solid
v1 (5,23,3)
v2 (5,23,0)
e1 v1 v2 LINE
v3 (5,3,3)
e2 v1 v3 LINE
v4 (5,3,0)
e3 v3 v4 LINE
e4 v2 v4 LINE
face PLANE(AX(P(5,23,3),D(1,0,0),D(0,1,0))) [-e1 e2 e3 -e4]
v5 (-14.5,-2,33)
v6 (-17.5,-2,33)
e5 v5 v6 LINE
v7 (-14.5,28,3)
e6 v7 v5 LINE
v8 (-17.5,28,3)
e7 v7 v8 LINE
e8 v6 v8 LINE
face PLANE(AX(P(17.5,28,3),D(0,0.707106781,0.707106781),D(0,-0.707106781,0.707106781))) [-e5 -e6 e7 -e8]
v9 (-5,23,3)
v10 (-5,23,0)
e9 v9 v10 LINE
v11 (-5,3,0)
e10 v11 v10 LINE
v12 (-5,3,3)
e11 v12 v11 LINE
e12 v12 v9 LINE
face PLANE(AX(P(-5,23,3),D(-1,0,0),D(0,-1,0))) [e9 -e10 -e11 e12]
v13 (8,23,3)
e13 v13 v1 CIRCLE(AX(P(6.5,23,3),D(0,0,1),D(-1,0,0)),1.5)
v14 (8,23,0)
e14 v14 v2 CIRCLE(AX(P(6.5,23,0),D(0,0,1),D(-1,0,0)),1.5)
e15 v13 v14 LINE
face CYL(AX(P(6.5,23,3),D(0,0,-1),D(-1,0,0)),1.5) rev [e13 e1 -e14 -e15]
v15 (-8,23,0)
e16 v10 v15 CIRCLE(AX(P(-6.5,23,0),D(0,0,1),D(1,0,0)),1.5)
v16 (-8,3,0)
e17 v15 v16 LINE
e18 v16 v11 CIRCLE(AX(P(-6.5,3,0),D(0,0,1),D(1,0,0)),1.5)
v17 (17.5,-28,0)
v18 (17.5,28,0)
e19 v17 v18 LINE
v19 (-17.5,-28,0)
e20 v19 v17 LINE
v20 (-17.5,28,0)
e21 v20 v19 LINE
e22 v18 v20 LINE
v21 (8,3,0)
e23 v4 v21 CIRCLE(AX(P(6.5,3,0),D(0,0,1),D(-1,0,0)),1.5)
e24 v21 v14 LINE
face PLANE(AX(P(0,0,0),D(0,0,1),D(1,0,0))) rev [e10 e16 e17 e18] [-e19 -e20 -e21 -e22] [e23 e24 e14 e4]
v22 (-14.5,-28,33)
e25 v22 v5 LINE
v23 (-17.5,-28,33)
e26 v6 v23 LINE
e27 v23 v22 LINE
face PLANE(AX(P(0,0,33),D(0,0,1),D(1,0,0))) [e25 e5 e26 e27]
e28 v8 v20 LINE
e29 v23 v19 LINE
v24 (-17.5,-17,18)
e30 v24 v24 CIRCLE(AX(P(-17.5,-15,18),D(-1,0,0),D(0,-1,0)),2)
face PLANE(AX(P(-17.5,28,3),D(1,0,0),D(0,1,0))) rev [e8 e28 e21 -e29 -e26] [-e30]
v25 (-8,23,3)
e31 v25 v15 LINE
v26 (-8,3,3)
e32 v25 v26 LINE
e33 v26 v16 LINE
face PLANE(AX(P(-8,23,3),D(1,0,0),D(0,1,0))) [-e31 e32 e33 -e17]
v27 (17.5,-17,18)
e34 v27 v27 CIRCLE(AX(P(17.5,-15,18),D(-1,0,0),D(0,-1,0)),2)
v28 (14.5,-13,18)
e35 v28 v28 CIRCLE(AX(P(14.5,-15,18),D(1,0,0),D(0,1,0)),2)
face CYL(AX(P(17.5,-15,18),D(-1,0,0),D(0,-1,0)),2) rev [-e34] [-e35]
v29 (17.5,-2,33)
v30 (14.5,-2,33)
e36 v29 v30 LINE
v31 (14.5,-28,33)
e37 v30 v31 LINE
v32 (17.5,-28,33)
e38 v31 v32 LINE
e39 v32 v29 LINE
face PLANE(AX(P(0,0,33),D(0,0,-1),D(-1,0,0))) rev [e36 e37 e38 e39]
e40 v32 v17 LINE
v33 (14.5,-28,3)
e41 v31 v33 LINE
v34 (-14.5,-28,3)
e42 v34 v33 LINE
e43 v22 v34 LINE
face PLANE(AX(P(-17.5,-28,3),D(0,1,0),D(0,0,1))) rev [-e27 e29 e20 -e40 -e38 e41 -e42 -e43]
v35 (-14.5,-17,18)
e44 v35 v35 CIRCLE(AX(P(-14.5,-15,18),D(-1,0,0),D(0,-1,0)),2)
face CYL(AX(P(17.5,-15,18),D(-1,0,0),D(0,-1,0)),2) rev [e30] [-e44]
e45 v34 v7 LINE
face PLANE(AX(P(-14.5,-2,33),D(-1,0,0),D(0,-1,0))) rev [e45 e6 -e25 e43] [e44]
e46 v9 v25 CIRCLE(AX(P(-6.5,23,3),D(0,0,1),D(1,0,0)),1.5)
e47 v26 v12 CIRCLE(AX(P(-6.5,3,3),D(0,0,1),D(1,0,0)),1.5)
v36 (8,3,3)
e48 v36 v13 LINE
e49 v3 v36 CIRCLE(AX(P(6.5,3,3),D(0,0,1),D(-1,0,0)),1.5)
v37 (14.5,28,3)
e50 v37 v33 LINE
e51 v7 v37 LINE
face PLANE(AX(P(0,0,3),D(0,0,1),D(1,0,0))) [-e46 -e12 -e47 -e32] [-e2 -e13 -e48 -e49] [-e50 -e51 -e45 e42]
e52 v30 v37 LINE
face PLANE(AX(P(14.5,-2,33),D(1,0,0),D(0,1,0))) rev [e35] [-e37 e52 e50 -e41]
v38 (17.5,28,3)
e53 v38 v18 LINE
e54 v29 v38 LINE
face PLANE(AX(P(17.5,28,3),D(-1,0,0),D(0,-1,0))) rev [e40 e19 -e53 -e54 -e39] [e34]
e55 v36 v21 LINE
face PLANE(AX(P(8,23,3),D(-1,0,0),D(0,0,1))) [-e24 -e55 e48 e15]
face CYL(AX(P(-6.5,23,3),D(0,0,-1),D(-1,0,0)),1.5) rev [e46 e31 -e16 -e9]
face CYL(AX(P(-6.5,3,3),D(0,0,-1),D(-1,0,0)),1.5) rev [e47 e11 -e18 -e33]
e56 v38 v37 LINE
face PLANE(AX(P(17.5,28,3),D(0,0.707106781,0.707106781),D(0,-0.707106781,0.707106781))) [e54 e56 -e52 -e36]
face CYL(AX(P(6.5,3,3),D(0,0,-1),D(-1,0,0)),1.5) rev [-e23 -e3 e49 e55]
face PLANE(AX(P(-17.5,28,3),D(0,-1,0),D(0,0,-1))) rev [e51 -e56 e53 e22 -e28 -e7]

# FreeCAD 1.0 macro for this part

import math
import FreeCAD as App
import Part
import Sketcher
from FreeCAD import Vector


def add_polygon(sketch, points):
    """Adds a closed chain of lines whose ends are joined by coincident constraints."""
    first, n = sketch.GeometryCount, len(points)
    for a, b in zip(points, points[1:] + points[:1]):
        sketch.addGeometry(Part.LineSegment(App.Vector(*a, 0), App.Vector(*b, 0)), False)
    for i in range(n):
        sketch.addConstraint(Sketcher.Constraint("Coincident", first + i, 2, first + (i + 1) % n, 1))

doc = App.newDocument("Part")
body = doc.addObject("PartDesign::Body", "Body")

# Sketch on XY plane
sketch1 = body.newObject("Sketcher::SketchObject", "Sketch")
sketch1.AttachmentSupport = (doc.getObject("XY_Plane"), [""])
sketch1.MapMode = "FlatFace"
add_polygon(sketch1, [(-17.5, 28), (-17.5, -28), (17.5, -28), (17.5, 28)])  # lines 0-3
sketch1.addGeometry(Part.ArcOfCircle(Part.Circle(Vector(-6.5, 23, 0), Vector(0, 0, 1), 1.5), math.radians(0), math.radians(180)), False)  # 4
sketch1.addGeometry(Part.LineSegment(Vector(-5, 23, 0), Vector(-5, 3, 0)), False)  # 5
sketch1.addGeometry(Part.ArcOfCircle(Part.Circle(Vector(-6.5, 3, 0), Vector(0, 0, 1), 1.5), math.radians(180), math.radians(360)), False)  # 6
sketch1.addGeometry(Part.LineSegment(Vector(-8, 3, 0), Vector(-8, 23, 0)), False)  # 7
sketch1.addGeometry(Part.LineSegment(Vector(5, 3, 0), Vector(5, 23, 0)), False)  # 8
sketch1.addGeometry(Part.ArcOfCircle(Part.Circle(Vector(6.5, 23, 0), Vector(0, 0, 1), 1.5), math.radians(0), math.radians(180)), False)  # 9
sketch1.addGeometry(Part.LineSegment(Vector(8, 23, 0), Vector(8, 3, 0)), False)  # 10
sketch1.addGeometry(Part.ArcOfCircle(Part.Circle(Vector(6.5, 3, 0), Vector(0, 0, 1), 1.5), math.radians(180), math.radians(360)), False)  # 11
sketch1.addConstraint(Sketcher.Constraint("Tangent", 4, 1, 5, 1))
sketch1.addConstraint(Sketcher.Constraint("Tangent", 5, 2, 6, 2))
sketch1.addConstraint(Sketcher.Constraint("Tangent", 6, 1, 7, 1))
sketch1.addConstraint(Sketcher.Constraint("Tangent", 7, 2, 4, 2))
sketch1.addConstraint(Sketcher.Constraint("Tangent", 8, 2, 9, 2))
sketch1.addConstraint(Sketcher.Constraint("Tangent", 9, 1, 10, 1))
sketch1.addConstraint(Sketcher.Constraint("Tangent", 10, 2, 11, 2))
sketch1.addConstraint(Sketcher.Constraint("Tangent", 11, 1, 8, 1))
sketch1.addConstraint(Sketcher.Constraint("Vertical", 0))
sketch1.addConstraint(Sketcher.Constraint("Horizontal", 1))
sketch1.addConstraint(Sketcher.Constraint("Vertical", 2))
sketch1.addConstraint(Sketcher.Constraint("Horizontal", 3))
sketch1.addConstraint(Sketcher.Constraint("Vertical", 5))
sketch1.addConstraint(Sketcher.Constraint("Vertical", 7))
sketch1.addConstraint(Sketcher.Constraint("Vertical", 8))
sketch1.addConstraint(Sketcher.Constraint("Vertical", 10))
sketch1.addConstraint(Sketcher.Constraint("Equal", 6, 9))
sketch1.addConstraint(Sketcher.Constraint("Symmetric", 0, 2, 2, 2, -1, 1))
sketch1.addConstraint(Sketcher.Constraint("Symmetric", 4, 3, 9, 3, -2))
sketch1.addConstraint(Sketcher.Constraint("Horizontal", 6, 3, 11, 3))
sketch1.addConstraint(Sketcher.Constraint("Radius", 4, 1.5))
sketch1.addConstraint(Sketcher.Constraint("DistanceX", 1, 1, 1, 2, 35.0))
sketch1.addConstraint(Sketcher.Constraint("DistanceY", 0, 2, 0, 1, 56.0))
sketch1.addConstraint(Sketcher.Constraint("DistanceY", 5, 2, 5, 1, 20.0))
sketch1.addConstraint(Sketcher.Constraint("DistanceY", -1, 1, 4, 3, 23.0))
sketch1.addConstraint(Sketcher.Constraint("DistanceX", 4, 1, -1, 1, 5.0))
pad1 = body.newObject("PartDesign::Pad", "Pad")
pad1.Profile = sketch1
pad1.Length = 3

# Sketch on XY plane
sketch2 = body.newObject("Sketcher::SketchObject", "Sketch001")
sketch2.AttachmentSupport = (doc.getObject("XY_Plane"), [""])
sketch2.MapMode = "FlatFace"
sketch2.AttachmentOffset = App.Placement(Vector(0, 0, 3), App.Rotation())
add_polygon(sketch2, [(-17.5, -2), (-17.5, -28), (-14.5, -28), (-14.5, -2)])  # lines 0-3
add_polygon(sketch2, [(14.5, -2), (14.5, -28), (17.5, -28), (17.5, -2)])  # lines 4-7
sketch2.addConstraint(Sketcher.Constraint("Vertical", 0))
sketch2.addConstraint(Sketcher.Constraint("Horizontal", 1))
sketch2.addConstraint(Sketcher.Constraint("Vertical", 2))
sketch2.addConstraint(Sketcher.Constraint("Horizontal", 3))
sketch2.addConstraint(Sketcher.Constraint("Vertical", 4))
sketch2.addConstraint(Sketcher.Constraint("Horizontal", 5))
sketch2.addConstraint(Sketcher.Constraint("Vertical", 6))
sketch2.addConstraint(Sketcher.Constraint("Horizontal", 7))
sketch2.addConstraint(Sketcher.Constraint("Symmetric", 1, 2, 4, 2, -2))
sketch2.addConstraint(Sketcher.Constraint("Symmetric", 3, 2, 6, 2, -2))
sketch2.addConstraint(Sketcher.Constraint("DistanceX", 1, 1, 1, 2, 3.0))
sketch2.addConstraint(Sketcher.Constraint("DistanceY", 0, 2, 0, 1, 26.0))
sketch2.addConstraint(Sketcher.Constraint("DistanceY", 0, 2, -1, 1, 28.0))
sketch2.addConstraint(Sketcher.Constraint("DistanceX", 1, 2, 4, 2, 29.0))
pad2 = body.newObject("PartDesign::Pad", "Pad001")
pad2.Profile = sketch2
pad2.Length = 30

# Sketch on YZ plane
sketch3 = body.newObject("Sketcher::SketchObject", "Sketch002")
sketch3.AttachmentSupport = (doc.getObject("YZ_Plane"), [""])
sketch3.MapMode = "FlatFace"
sketch3.AttachmentOffset = App.Placement(Vector(0, 0, 14.5), App.Rotation())
sketch3.addGeometry(Part.Circle(Vector(-15, 18, 0), Vector(0, 0, 1), 2), False)
sketch3.addConstraint(Sketcher.Constraint("Diameter", 0, 4.0))
sketch3.addConstraint(Sketcher.Constraint("DistanceX", 0, 3, -1, 1, 15.0))
sketch3.addConstraint(Sketcher.Constraint("DistanceY", -1, 1, 0, 3, 18.0))
pocket1 = body.newObject("PartDesign::Pocket", "Pocket")
pocket1.Profile = sketch3
pocket1.Type = "ThroughAll"
pocket1.Midplane = True

# Sketch on YZ plane
sketch4 = body.newObject("Sketcher::SketchObject", "Sketch003")
sketch4.AttachmentSupport = (doc.getObject("YZ_Plane"), [""])
sketch4.MapMode = "FlatFace"
sketch4.AttachmentOffset = App.Placement(Vector(0, 0, -17.5), App.Rotation())
add_polygon(sketch4, [(-2, 33), (28, 3), (-2, 3)])  # lines 0-2
sketch4.addConstraint(Sketcher.Constraint("Horizontal", 1))
sketch4.addConstraint(Sketcher.Constraint("Vertical", 2))
sketch4.addConstraint(Sketcher.Constraint("Equal", 1, 2))
sketch4.addConstraint(Sketcher.Constraint("DistanceX", 1, 2, 1, 1, 30.0))
sketch4.addConstraint(Sketcher.Constraint("DistanceX", -1, 1, 0, 2, 28.0))
sketch4.addConstraint(Sketcher.Constraint("DistanceY", -1, 1, 0, 2, 3.0))
pad3 = body.newObject("PartDesign::Pad", "Pad002")
pad3.Profile = sketch4
pad3.Length = 35

# Sketch on XY plane
sketch5 = body.newObject("Sketcher::SketchObject", "Sketch004")
sketch5.AttachmentSupport = (doc.getObject("XY_Plane"), [""])
sketch5.MapMode = "FlatFace"
sketch5.AttachmentOffset = App.Placement(Vector(0, 0, 33), App.Rotation())
add_polygon(sketch5, [(-14.5, 28), (-14.5, -2), (14.5, -2), (14.5, 28)])  # lines 0-3
sketch5.addConstraint(Sketcher.Constraint("Vertical", 0))
sketch5.addConstraint(Sketcher.Constraint("Horizontal", 1))
sketch5.addConstraint(Sketcher.Constraint("Vertical", 2))
sketch5.addConstraint(Sketcher.Constraint("Horizontal", 3))
sketch5.addConstraint(Sketcher.Constraint("DistanceX", 1, 1, 1, 2, 29.0))
sketch5.addConstraint(Sketcher.Constraint("DistanceY", 0, 2, 0, 1, 30.0))
sketch5.addConstraint(Sketcher.Constraint("DistanceY", 0, 2, -1, 1, 2.0))
sketch5.addConstraint(Sketcher.Constraint("DistanceX", 0, 2, -1, 1, 14.5))
pocket2 = body.newObject("PartDesign::Pocket", "Pocket001")
pocket2.Profile = sketch5
pocket2.Length = 30

doc.recompute()
